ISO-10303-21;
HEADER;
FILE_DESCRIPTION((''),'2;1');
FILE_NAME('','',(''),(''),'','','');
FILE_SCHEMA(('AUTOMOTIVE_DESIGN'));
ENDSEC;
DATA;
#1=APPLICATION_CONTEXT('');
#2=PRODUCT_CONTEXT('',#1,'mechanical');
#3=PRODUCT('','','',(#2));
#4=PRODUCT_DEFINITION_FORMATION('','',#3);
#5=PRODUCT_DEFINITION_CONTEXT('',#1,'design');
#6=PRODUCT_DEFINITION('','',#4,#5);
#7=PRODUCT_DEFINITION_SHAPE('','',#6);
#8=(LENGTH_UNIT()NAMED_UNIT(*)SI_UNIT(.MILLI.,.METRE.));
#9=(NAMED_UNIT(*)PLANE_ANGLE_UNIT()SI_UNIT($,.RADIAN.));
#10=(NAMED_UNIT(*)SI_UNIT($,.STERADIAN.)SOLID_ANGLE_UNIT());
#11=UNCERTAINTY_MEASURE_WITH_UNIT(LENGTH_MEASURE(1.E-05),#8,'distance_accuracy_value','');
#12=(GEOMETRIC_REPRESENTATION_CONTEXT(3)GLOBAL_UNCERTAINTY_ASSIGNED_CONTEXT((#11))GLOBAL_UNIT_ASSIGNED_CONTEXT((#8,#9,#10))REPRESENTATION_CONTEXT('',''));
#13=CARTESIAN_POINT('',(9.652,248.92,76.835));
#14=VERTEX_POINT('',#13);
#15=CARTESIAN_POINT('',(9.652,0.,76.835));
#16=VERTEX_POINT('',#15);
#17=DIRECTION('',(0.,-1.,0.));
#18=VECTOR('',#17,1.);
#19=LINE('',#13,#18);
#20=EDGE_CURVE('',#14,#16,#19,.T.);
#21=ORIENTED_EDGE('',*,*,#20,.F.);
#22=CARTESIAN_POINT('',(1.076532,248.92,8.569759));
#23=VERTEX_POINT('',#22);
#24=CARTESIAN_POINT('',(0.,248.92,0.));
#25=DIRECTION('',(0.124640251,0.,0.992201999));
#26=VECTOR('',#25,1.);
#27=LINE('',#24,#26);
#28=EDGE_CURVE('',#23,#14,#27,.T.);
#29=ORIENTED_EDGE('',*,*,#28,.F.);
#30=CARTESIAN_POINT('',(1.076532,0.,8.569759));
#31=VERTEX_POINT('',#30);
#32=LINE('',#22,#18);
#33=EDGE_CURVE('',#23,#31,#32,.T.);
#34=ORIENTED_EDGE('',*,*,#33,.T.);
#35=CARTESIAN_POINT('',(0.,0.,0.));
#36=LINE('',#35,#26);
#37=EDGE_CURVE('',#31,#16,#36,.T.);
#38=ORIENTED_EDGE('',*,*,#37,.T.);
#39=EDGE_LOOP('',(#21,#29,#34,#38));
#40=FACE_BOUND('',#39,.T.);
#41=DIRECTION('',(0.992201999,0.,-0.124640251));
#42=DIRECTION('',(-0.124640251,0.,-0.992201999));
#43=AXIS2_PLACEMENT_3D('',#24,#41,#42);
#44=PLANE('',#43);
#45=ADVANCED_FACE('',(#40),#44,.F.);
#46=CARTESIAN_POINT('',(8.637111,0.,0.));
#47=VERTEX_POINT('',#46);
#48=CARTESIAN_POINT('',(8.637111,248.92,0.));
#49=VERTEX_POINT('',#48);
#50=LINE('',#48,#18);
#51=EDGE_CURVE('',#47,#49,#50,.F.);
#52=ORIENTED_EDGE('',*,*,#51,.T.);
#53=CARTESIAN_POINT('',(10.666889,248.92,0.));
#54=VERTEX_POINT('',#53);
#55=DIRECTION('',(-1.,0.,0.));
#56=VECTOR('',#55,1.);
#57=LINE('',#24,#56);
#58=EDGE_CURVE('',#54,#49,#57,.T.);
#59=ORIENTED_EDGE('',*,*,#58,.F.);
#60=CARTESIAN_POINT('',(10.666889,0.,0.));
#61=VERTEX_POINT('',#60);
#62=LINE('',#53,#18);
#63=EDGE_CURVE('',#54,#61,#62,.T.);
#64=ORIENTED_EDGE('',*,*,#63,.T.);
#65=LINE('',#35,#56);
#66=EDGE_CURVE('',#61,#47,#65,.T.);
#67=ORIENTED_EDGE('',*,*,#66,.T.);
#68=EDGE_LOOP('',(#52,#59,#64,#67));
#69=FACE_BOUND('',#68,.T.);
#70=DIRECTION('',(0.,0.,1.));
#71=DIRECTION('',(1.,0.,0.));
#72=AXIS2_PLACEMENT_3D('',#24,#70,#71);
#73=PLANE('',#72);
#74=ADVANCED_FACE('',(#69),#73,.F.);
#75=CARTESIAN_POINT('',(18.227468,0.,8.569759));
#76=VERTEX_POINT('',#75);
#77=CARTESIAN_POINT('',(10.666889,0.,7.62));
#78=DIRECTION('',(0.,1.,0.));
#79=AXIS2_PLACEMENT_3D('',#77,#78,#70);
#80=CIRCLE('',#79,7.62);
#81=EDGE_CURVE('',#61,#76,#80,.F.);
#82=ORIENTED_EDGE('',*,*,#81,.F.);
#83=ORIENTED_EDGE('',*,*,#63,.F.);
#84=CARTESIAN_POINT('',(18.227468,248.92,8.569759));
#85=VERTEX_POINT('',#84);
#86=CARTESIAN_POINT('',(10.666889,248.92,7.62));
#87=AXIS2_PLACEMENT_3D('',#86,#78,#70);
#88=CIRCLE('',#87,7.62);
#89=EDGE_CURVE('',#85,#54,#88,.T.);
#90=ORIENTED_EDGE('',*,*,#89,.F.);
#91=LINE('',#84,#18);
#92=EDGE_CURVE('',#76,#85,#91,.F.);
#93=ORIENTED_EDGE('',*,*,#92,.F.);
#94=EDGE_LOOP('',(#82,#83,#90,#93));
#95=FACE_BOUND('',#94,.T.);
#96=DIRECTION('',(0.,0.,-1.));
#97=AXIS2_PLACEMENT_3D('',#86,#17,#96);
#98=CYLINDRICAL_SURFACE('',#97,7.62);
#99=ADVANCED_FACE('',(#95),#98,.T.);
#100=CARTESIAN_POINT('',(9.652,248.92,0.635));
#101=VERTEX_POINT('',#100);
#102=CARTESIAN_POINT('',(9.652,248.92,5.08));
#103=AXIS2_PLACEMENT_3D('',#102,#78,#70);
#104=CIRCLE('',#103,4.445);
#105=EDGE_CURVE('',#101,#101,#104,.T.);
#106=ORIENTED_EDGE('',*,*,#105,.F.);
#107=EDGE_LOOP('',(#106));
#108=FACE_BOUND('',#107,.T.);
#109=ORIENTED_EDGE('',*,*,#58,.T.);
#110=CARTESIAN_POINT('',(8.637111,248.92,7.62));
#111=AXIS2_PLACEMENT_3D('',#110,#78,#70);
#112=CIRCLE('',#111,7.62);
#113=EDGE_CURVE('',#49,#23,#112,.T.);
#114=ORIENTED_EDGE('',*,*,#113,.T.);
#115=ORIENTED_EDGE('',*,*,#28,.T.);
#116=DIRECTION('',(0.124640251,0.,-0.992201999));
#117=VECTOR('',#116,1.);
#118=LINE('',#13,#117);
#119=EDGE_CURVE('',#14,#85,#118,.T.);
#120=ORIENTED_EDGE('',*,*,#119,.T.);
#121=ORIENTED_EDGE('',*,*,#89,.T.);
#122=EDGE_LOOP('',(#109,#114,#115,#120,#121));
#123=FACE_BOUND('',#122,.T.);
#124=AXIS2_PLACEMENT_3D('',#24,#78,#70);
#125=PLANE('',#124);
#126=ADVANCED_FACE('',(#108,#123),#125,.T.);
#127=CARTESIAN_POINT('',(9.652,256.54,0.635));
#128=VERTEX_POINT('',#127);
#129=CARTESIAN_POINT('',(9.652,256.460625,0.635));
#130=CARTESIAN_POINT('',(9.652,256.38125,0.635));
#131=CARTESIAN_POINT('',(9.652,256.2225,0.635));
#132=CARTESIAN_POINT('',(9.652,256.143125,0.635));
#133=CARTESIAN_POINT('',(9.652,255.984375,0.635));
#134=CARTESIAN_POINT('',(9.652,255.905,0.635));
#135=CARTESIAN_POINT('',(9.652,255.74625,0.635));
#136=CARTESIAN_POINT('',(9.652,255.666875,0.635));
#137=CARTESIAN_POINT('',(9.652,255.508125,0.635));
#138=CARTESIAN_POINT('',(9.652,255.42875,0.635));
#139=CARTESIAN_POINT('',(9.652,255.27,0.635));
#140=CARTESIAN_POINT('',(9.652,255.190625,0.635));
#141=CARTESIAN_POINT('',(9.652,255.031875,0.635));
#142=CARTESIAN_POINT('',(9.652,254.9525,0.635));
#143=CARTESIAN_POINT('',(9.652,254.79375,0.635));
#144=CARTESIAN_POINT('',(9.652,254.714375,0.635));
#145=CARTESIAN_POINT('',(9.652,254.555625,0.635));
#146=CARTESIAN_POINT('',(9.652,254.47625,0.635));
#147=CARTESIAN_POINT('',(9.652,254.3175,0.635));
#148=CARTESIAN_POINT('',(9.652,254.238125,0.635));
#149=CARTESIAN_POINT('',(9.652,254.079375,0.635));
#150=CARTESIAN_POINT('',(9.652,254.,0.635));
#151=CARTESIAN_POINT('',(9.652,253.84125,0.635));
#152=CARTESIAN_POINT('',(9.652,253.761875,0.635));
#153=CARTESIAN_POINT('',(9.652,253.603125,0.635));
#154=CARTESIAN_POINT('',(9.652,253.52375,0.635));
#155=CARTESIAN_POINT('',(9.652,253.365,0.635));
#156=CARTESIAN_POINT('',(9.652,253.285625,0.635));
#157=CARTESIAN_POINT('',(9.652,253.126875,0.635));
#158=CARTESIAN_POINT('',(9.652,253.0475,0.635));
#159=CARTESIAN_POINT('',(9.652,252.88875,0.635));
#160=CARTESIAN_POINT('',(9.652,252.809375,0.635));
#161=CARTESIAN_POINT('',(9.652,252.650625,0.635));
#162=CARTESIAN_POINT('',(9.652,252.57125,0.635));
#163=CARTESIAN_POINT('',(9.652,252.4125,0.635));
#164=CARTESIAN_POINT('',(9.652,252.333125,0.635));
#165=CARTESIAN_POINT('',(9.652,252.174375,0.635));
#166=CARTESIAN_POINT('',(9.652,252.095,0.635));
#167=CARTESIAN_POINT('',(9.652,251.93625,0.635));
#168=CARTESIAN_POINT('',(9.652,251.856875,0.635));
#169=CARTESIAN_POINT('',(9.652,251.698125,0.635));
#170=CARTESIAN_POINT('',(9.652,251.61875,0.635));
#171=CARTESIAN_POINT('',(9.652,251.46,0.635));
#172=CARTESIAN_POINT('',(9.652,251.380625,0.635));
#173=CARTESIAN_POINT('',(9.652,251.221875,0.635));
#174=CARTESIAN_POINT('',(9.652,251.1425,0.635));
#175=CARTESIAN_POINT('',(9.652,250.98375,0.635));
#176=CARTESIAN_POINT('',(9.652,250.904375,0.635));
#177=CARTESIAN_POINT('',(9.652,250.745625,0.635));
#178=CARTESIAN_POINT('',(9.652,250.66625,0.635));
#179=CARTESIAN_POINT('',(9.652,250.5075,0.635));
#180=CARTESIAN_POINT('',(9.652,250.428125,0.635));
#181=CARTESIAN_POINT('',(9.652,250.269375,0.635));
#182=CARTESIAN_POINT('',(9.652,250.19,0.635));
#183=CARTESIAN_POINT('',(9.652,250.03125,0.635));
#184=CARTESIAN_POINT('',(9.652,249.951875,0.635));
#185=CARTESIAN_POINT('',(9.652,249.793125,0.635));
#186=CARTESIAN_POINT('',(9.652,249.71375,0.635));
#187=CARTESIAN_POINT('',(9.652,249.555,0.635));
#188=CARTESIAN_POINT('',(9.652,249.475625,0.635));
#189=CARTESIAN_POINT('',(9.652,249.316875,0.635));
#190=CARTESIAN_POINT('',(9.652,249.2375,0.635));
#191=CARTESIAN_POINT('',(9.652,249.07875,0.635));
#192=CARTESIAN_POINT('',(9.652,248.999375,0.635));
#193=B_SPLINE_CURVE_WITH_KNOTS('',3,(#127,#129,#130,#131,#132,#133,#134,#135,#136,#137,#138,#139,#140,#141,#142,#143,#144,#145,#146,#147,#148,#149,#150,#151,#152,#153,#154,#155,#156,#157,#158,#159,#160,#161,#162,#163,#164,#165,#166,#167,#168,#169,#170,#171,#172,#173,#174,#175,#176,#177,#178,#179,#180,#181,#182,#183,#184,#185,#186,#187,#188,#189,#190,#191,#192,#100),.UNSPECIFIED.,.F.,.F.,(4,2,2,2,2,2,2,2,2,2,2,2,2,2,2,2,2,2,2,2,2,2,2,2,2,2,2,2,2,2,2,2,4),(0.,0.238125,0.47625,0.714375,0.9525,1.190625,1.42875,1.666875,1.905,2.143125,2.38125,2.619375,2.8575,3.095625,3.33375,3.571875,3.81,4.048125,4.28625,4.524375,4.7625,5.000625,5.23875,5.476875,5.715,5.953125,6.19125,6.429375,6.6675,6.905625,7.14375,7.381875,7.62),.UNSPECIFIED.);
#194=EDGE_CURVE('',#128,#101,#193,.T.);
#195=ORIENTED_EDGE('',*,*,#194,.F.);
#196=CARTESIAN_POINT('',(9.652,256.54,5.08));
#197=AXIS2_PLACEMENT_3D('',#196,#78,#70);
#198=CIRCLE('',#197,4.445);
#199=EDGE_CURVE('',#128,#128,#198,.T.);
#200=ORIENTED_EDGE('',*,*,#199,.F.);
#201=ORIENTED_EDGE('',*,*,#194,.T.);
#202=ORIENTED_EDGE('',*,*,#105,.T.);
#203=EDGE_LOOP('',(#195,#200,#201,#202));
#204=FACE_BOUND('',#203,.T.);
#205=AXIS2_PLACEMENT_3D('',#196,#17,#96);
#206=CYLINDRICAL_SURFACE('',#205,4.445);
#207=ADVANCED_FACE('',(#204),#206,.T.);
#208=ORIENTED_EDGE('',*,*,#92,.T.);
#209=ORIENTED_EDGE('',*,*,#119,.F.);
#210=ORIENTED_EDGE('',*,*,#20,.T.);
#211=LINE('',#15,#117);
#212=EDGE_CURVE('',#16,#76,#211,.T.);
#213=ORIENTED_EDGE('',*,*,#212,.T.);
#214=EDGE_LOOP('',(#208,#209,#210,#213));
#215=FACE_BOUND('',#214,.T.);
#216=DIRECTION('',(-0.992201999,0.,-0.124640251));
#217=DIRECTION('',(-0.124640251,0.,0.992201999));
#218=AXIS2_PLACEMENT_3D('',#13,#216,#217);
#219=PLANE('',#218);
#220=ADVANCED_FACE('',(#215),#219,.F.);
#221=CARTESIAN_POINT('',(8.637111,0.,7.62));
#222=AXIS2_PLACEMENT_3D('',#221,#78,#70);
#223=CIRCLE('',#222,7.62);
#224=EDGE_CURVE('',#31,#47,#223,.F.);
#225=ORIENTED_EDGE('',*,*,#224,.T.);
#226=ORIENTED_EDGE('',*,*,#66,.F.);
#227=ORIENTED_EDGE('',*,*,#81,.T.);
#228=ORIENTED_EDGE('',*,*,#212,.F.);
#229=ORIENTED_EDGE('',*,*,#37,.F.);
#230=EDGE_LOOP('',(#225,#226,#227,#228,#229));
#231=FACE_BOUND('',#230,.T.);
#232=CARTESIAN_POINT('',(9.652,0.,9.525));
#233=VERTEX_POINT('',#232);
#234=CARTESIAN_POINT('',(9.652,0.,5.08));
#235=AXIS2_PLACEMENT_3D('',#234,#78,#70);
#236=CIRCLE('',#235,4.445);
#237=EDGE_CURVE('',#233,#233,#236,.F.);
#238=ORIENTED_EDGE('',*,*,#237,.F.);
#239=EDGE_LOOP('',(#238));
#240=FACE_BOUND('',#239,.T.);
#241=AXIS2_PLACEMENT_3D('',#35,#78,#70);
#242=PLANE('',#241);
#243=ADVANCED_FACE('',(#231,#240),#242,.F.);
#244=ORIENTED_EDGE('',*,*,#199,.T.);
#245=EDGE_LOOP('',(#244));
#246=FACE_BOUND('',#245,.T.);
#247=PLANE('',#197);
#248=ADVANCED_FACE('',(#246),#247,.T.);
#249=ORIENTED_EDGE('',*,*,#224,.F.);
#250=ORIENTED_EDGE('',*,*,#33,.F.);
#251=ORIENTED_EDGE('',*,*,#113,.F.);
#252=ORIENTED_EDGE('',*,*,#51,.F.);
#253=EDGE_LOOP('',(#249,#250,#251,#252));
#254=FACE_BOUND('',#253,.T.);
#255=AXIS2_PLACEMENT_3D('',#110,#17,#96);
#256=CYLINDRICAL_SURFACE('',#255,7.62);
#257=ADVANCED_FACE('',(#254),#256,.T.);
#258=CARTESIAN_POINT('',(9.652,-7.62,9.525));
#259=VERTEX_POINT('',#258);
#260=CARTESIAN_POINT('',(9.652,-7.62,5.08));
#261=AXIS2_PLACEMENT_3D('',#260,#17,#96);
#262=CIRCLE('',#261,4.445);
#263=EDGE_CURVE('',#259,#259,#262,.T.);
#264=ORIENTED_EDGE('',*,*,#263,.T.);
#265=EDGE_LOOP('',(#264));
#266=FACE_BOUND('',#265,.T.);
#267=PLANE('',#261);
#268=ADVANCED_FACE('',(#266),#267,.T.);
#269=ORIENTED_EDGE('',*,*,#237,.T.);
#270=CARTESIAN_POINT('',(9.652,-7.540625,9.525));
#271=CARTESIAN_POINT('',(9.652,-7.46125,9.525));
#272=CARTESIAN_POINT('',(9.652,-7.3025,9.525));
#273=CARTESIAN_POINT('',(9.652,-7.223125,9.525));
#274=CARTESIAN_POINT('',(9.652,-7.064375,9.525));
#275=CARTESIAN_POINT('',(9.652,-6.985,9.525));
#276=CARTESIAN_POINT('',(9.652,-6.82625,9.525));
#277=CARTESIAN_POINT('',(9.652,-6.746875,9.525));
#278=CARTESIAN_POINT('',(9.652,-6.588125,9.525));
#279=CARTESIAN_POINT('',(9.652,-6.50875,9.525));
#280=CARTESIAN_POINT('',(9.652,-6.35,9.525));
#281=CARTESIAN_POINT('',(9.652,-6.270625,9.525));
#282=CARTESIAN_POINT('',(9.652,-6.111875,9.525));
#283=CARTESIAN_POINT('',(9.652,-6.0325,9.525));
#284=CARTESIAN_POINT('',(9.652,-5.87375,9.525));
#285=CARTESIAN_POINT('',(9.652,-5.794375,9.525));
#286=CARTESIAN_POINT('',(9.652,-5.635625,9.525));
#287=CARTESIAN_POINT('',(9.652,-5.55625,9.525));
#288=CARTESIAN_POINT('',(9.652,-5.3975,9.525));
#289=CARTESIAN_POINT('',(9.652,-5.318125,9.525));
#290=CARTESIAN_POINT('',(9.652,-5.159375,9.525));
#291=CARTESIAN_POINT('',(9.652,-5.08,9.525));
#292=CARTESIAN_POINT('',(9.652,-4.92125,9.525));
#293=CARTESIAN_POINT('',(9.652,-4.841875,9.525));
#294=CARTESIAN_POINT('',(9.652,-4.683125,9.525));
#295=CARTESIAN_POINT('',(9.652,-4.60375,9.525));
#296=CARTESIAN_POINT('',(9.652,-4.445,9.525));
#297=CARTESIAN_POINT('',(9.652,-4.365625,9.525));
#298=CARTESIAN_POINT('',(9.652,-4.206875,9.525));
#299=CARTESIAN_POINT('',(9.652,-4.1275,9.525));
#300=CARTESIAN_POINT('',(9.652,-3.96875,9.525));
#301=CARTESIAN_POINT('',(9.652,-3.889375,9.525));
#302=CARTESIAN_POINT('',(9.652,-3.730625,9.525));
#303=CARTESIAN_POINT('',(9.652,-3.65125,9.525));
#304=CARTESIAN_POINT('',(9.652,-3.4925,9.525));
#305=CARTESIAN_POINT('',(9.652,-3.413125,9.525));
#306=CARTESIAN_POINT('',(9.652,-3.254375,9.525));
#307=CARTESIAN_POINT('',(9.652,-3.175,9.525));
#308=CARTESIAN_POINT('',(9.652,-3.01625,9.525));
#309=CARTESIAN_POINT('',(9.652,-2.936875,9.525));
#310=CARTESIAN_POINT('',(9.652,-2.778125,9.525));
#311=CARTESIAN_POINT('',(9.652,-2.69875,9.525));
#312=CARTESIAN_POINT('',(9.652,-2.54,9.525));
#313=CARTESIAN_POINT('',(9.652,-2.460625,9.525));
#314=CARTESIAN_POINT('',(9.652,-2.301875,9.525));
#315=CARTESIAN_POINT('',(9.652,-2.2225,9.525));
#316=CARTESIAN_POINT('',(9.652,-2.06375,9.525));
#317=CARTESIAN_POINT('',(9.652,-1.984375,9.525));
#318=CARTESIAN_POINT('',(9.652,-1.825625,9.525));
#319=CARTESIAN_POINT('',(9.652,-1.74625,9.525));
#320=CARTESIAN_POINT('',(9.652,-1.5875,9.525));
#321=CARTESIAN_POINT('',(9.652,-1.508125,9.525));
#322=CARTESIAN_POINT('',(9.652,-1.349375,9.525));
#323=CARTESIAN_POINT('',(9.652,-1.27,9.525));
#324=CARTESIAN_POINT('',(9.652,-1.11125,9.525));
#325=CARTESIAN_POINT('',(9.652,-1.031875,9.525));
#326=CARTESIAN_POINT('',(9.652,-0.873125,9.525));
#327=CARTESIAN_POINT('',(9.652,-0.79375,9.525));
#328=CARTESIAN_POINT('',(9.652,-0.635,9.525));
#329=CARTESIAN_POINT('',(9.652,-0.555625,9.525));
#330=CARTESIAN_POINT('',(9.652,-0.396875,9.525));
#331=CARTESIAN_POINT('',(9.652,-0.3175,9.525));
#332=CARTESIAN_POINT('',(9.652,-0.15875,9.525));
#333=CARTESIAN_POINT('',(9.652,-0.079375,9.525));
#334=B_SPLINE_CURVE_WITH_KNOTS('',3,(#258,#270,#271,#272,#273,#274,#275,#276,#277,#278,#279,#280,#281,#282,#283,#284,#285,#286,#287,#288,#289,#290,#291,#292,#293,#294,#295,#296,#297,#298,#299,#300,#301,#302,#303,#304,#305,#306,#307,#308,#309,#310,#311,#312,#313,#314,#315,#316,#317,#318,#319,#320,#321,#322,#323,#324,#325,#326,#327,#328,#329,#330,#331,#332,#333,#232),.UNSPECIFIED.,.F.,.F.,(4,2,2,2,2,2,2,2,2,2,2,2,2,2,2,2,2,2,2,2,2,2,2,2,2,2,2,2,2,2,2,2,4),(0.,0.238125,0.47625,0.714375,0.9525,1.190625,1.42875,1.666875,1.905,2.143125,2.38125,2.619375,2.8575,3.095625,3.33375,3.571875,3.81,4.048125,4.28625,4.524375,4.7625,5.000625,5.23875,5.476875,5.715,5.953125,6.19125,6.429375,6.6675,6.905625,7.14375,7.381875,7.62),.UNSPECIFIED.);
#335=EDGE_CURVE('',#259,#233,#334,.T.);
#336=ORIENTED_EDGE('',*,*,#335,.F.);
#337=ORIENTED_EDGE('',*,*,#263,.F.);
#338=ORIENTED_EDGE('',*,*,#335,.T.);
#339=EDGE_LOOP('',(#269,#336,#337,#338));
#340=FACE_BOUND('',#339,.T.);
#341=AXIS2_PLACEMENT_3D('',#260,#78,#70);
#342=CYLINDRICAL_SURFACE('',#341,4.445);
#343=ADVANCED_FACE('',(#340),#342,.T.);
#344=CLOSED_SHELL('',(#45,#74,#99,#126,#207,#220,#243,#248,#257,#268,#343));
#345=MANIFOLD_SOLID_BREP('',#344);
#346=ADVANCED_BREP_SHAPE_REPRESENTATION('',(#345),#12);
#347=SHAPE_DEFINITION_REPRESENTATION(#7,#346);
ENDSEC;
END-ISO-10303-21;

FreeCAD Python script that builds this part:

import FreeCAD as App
import Part
import Sketcher

V = App.Vector
Q = App.Units.Quantity


def edges_at(feature, points):
    """Names of the edges that pass closest to the given points."""
    edges = feature.Shape.Edges
    near = lambda p: min(range(len(edges)), key=lambda i: edges[i].distToShape(Part.Vertex(*p))[0])
    return sorted({f"Edge{near(p) + 1}" for p in points})

doc = App.newDocument("Part")
body = doc.addObject("PartDesign::Body", "Body")

# Sketch on XZ plane
sketch1 = body.newObject("Sketcher::SketchObject", "Sketch")
sketch1.AttachmentSupport = (doc.getObject("XZ_Plane"), [""])
sketch1.MapMode = "FlatFace"
sketch1.addGeometry([
    Part.LineSegment(V(19.304, 0, 0), V(0, 0, 0)),
    Part.LineSegment(V(0, 0, 0), V(9.652, 76.835, 0)),
    Part.LineSegment(V(9.652, 76.835, 0), V(19.304, 0, 0)),
], False)
sketch1.addConstraint([
    Sketcher.Constraint("Coincident", 0, 2, 1, 1),
    Sketcher.Constraint("Coincident", 1, 2, 2, 1),
    Sketcher.Constraint("Coincident", 2, 2, 0, 1),
    Sketcher.Constraint("Horizontal", 0),
    Sketcher.Constraint("Coincident", 0, 2, -1, 1),
    Sketcher.Constraint("Equal", 1, 2),
    Sketcher.Constraint("DistanceX", 0, 2, 0, 1, Q("0.76 in")),
    Sketcher.Constraint("Angle", 1, Q("82.840019 deg")),
])
pad1 = body.newObject("PartDesign::Pad", "Pad")
pad1.Profile = sketch1
pad1.Length = Q("9.8 in")
pad1.Reversed = True
doc.recompute()

fillet = body.newObject("PartDesign::Fillet", "Fillet")
fillet.Base = (pad1, edges_at(pad1, [(0, 124.46, 0)]))
fillet.Radius = Q("0.3 in")
doc.recompute()

fillet2 = body.newObject("PartDesign::Fillet", "Fillet001")
fillet2.Base = (fillet, edges_at(fillet, [(19.304, 124.46, 0)]))
fillet2.Radius = Q("0.3 in")

# Sketch on XZ plane
sketch2 = body.newObject("Sketcher::SketchObject", "Sketch001")
sketch2.AttachmentSupport = (doc.getObject("XZ_Plane"), [""])
sketch2.MapMode = "FlatFace"
sketch2.addGeometry(Part.Circle(V(9.652, 5.08, 0), V(0, 0, 1), 4.445), False)
sketch2.addConstraint([
    Sketcher.Constraint("Diameter", 0, Q("0.35 in")),
    Sketcher.Constraint("DistanceY", -1, 1, 0, 3, Q("0.2 in")),
    Sketcher.Constraint("DistanceX", -1, 1, 0, 3, Q("0.38 in")),
])
pad2 = body.newObject("PartDesign::Pad", "Pad001")
pad2.Profile = sketch2
pad2.Length = Q("0.3 in")

# Sketch on XZ plane
sketch3 = body.newObject("Sketcher::SketchObject", "Sketch002")
sketch3.AttachmentSupport = (doc.getObject("XZ_Plane"), [""])
sketch3.MapMode = "FlatFace"
sketch3.AttachmentOffset = App.Placement(V(0, 0, -10.1 * 25.4), App.Rotation())
sketch3.addGeometry(Part.Circle(V(9.652, 5.08, 0), V(0, 0, 1), 4.445), False)
sketch3.addConstraint([
    Sketcher.Constraint("Diameter", 0, Q("0.35 in")),
    Sketcher.Constraint("DistanceY", -1, 1, 0, 3, Q("0.2 in")),
    Sketcher.Constraint("DistanceX", -1, 1, 0, 3, Q("0.38 in")),
])
pad3 = body.newObject("PartDesign::Pad", "Pad002")
pad3.Profile = sketch3
pad3.Length = Q("0.3 in")

doc.recompute()
